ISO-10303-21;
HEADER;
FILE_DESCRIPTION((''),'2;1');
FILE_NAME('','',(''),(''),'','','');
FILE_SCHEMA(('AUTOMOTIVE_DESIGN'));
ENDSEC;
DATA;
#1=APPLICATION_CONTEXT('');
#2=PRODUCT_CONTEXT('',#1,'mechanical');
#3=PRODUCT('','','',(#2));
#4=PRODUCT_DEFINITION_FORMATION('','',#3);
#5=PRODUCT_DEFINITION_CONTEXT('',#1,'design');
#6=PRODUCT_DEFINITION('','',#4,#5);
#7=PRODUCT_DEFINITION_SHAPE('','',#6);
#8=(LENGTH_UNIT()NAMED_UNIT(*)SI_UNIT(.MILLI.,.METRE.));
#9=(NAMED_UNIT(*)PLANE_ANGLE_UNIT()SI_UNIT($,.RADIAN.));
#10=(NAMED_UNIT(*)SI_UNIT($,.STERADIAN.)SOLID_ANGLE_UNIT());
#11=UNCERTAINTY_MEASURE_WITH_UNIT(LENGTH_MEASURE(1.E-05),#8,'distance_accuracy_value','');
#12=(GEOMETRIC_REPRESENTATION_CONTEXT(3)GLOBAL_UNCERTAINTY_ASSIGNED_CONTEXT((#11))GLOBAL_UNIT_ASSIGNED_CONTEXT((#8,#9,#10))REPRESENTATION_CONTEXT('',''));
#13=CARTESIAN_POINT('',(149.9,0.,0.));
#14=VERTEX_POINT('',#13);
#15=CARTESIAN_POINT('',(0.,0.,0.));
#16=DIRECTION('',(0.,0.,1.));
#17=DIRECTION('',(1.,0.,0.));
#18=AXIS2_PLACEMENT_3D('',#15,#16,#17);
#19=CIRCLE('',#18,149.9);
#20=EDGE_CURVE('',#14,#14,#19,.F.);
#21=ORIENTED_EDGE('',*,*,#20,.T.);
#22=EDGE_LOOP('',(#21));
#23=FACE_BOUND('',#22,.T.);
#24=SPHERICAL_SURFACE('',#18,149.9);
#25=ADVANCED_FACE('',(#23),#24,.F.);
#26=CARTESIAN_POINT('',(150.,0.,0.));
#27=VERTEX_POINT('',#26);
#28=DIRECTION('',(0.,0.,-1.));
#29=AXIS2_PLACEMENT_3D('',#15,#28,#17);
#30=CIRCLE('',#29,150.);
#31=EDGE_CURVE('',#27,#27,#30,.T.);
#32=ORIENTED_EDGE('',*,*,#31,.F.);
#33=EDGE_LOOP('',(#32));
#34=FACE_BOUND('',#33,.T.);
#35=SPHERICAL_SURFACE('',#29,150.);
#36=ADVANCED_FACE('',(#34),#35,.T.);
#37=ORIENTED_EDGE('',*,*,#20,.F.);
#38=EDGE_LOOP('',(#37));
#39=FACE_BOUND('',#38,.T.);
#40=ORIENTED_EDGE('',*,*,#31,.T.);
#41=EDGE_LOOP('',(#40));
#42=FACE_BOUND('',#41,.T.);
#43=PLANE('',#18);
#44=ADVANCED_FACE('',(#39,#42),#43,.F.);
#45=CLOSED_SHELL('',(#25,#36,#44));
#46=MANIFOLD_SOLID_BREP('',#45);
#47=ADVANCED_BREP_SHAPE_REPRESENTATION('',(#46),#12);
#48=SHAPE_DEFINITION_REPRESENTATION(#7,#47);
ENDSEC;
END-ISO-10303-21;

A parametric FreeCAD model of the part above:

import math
import FreeCAD as App
import Part
import Sketcher

V = App.Vector


def faces_at(feature, points):
    """Names of the faces that lie closest to the given points."""
    faces = feature.Shape.Faces
    near = lambda p: min(range(len(faces)), key=lambda i: faces[i].distToShape(Part.Vertex(*p))[0])
    return sorted({f"Face{near(p) + 1}" for p in points})

doc = App.newDocument("Part")
body = doc.addObject("PartDesign::Body", "Body")

# Sketch on XY plane
sketch1 = body.newObject("Sketcher::SketchObject", "Sketch")
sketch1.AttachmentSupport = (doc.getObject("XY_Plane"), [""])
sketch1.MapMode = "FlatFace"
sketch1.addGeometry(Part.LineSegment(V(0, 150, 0), V(0, -150, 0)), False)
sketch1.addGeometry(Part.ArcOfCircle(Part.Circle(V(0, 0, 0), V(0, 0, 1), 150), math.radians(-90), math.radians(90)), False)
sketch1.addConstraint(Sketcher.Constraint("Coincident", 0, 1, 1, 2))
sketch1.addConstraint(Sketcher.Constraint("Coincident", 1, 1, 0, 2))
sketch1.addConstraint(Sketcher.Constraint("Vertical", 0))
sketch1.addConstraint(Sketcher.Constraint("Coincident", 1, 3, -1, 1))
sketch1.addConstraint(Sketcher.Constraint("PointOnObject", 0, 1, -2))
sketch1.addConstraint(Sketcher.Constraint("Radius", 1, 150.0))
revolution = body.newObject("PartDesign::Revolution", "Revolution")
revolution.Profile = sketch1
revolution.ReferenceAxis = (sketch1, ["V_Axis"])
revolution.Angle = 180
revolution.Reversed = True
doc.recompute()

thickness = body.newObject("PartDesign::Thickness", "Thickness")
thickness.Base = (revolution, faces_at(revolution, [(0, 0, 0)]))
thickness.Value = 0.1
thickness.Reversed = True
thickness.Join = "Arc"

doc.recompute()
